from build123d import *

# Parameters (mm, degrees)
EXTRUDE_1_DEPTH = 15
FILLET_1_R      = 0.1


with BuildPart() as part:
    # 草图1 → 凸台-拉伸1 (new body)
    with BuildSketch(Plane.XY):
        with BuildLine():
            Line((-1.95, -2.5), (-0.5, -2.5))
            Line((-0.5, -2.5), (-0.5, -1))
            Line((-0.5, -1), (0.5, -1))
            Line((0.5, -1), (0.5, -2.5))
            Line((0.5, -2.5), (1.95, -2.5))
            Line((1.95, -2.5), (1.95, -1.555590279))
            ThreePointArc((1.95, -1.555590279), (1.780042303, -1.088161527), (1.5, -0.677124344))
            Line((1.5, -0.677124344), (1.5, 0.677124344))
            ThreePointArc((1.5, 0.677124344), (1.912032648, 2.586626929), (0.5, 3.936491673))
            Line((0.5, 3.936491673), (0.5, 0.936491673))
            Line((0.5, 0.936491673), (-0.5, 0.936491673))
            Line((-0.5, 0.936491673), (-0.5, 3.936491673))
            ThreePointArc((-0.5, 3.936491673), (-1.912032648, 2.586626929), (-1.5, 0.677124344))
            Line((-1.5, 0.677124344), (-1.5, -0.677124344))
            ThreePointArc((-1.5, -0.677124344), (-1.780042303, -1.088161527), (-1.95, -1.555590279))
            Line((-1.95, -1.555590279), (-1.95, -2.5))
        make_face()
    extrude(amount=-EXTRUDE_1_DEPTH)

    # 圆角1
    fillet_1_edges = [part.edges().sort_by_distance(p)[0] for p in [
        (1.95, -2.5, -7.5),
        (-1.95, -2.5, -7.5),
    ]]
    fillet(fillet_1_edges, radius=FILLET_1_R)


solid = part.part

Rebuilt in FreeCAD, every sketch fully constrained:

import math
import FreeCAD as App
import Part
import Sketcher

V = App.Vector


def edges_at(feature, points):
    """Names of the edges that pass closest to the given points."""
    edges = feature.Shape.Edges
    near = lambda p: min(range(len(edges)), key=lambda i: edges[i].distToShape(Part.Vertex(*p))[0])
    return sorted({f"Edge{near(p) + 1}" for p in points})

doc = App.newDocument("Part")
body = doc.addObject("PartDesign::Body", "Body")

# Sketch on XY plane
sketch1 = doc.addObject("Sketcher::SketchObject", "Sketch")
body.addObject(sketch1)
sketch1.AttachmentSupport = (doc.XY_Plane, [""])
sketch1.MapMode = "FlatFace"
sketch1.addGeometry(Part.LineSegment(V(-1.9, -2.5, 0), V(-0.5, -2.5, 0)), False)
sketch1.addGeometry(Part.LineSegment(V(-0.5, -2.5, 0), V(-0.5, -1, 0)), False)
sketch1.addGeometry(Part.LineSegment(V(-0.5, -1, 0), V(0.5, -1, 0)), False)
sketch1.addGeometry(Part.LineSegment(V(0.5, -1, 0), V(0.5, -2.5, 0)), False)
sketch1.addGeometry(Part.LineSegment(V(0.5, -2.5, 0), V(1.9, -2.5, 0)), False)
sketch1.addGeometry(Part.LineSegment(V(1.9, -2.5, 0), V(1.9, -1.6, 0)), False)
sketch1.addGeometry(Part.ArcOfCircle(Part.Circle(V(0, -2, 0), V(0, 0, 1), 2), math.radians(13), math.radians(41)), False)
sketch1.addGeometry(Part.LineSegment(V(1.5, -0.7, 0), V(1.5, 0.7, 0)), False)
sketch1.addGeometry(Part.ArcOfCircle(Part.Circle(V(0, 2, 0), V(0, 0, 1), 2), math.radians(-41), math.radians(76)), False)
sketch1.addGeometry(Part.LineSegment(V(0.5, 3.9, 0), V(0.5, 0.9, 0)), False)
sketch1.addGeometry(Part.LineSegment(V(0.5, 0.9, 0), V(-0.5, 0.9, 0)), False)
sketch1.addGeometry(Part.LineSegment(V(-0.5, 0.9, 0), V(-0.5, 3.9, 0)), False)
sketch1.addGeometry(Part.ArcOfCircle(Part.Circle(V(0, 2, 0), V(0, 0, 1), 2), math.radians(104), math.radians(221)), False)
sketch1.addGeometry(Part.LineSegment(V(-1.5, 0.7, 0), V(-1.5, -0.7, 0)), False)
sketch1.addGeometry(Part.ArcOfCircle(Part.Circle(V(0, -2, 0), V(0, 0, 1), 2), math.radians(139), math.radians(167)), False)
sketch1.addGeometry(Part.LineSegment(V(-1.9, -1.6, 0), V(-1.9, -2.5, 0)), False)
sketch1.addConstraint(Sketcher.Constraint("Coincident", 0, 2, 1, 1))
sketch1.addConstraint(Sketcher.Constraint("Coincident", 1, 2, 2, 1))
sketch1.addConstraint(Sketcher.Constraint("Coincident", 2, 2, 3, 1))
sketch1.addConstraint(Sketcher.Constraint("Coincident", 3, 2, 4, 1))
sketch1.addConstraint(Sketcher.Constraint("Coincident", 4, 2, 5, 1))
sketch1.addConstraint(Sketcher.Constraint("Coincident", 5, 2, 6, 1))
sketch1.addConstraint(Sketcher.Constraint("Coincident", 6, 2, 7, 1))
sketch1.addConstraint(Sketcher.Constraint("Coincident", 7, 2, 8, 1))
sketch1.addConstraint(Sketcher.Constraint("Coincident", 8, 2, 9, 1))
sketch1.addConstraint(Sketcher.Constraint("Coincident", 9, 2, 10, 1))
sketch1.addConstraint(Sketcher.Constraint("Coincident", 10, 2, 11, 1))
sketch1.addConstraint(Sketcher.Constraint("Coincident", 11, 2, 12, 1))
sketch1.addConstraint(Sketcher.Constraint("Coincident", 12, 2, 13, 1))
sketch1.addConstraint(Sketcher.Constraint("Coincident", 13, 2, 14, 1))
sketch1.addConstraint(Sketcher.Constraint("Coincident", 14, 2, 15, 1))
sketch1.addConstraint(Sketcher.Constraint("Coincident", 15, 2, 0, 1))
sketch1.addConstraint(Sketcher.Constraint("Horizontal", 0))
sketch1.addConstraint(Sketcher.Constraint("Vertical", 1))
sketch1.addConstraint(Sketcher.Constraint("Horizontal", 2))
sketch1.addConstraint(Sketcher.Constraint("Vertical", 3))
sketch1.addConstraint(Sketcher.Constraint("Horizontal", 4))
sketch1.addConstraint(Sketcher.Constraint("Vertical", 5))
sketch1.addConstraint(Sketcher.Constraint("Vertical", 7))
sketch1.addConstraint(Sketcher.Constraint("Vertical", 9))
sketch1.addConstraint(Sketcher.Constraint("Horizontal", 10))
sketch1.addConstraint(Sketcher.Constraint("Vertical", 11))
sketch1.addConstraint(Sketcher.Constraint("Vertical", 13))
sketch1.addConstraint(Sketcher.Constraint("Vertical", 15))
sketch1.addConstraint(Sketcher.Constraint("Coincident", 12, 3, 8, 3))
sketch1.addConstraint(Sketcher.Constraint("Coincident", 14, 3, 6, 3))
sketch1.addConstraint(Sketcher.Constraint("Equal", 6, 8))
sketch1.addConstraint(Sketcher.Constraint("Equal", 8, 12))
sketch1.addConstraint(Sketcher.Constraint("Equal", 12, 14))
sketch1.addConstraint(Sketcher.Constraint("Symmetric", 6, 3, 8, 3, -1, 1))
sketch1.addConstraint(Sketcher.Constraint("Symmetric", 0, 2, 3, 2, -2))
sketch1.addConstraint(Sketcher.Constraint("Symmetric", 8, 2, 11, 2, -2))
sketch1.addConstraint(Sketcher.Constraint("Horizontal", 7, 2, 12, 2))
sketch1.addConstraint(Sketcher.Constraint("Horizontal", 5, 2, 14, 2))
sketch1.addConstraint(Sketcher.Constraint("Vertical", 3, 2, 8, 2))
sketch1.addConstraint(Sketcher.Constraint("Radius", 6, 2.0))
sketch1.addConstraint(Sketcher.Constraint("DistanceX", 2, 1, 2, 2, 1.0))
sketch1.addConstraint(Sketcher.Constraint("DistanceY", 9, 2, 9, 1, 3.0))
sketch1.addConstraint(Sketcher.Constraint("DistanceY", 1, 1, 1, 2, 1.5))
sketch1.addConstraint(Sketcher.Constraint("DistanceY", 6, 3, -1, 1, 2.0))
sketch1.addConstraint(Sketcher.Constraint("DistanceY", 1, 2, -1, 1, 1.0))
sketch1.addConstraint(Sketcher.Constraint("DistanceX", 2, 2, 6, 2, 1.0))
sketch1.addConstraint(Sketcher.Constraint("DistanceX", 0, 1, 0, 2, 1.45))
pad1 = doc.addObject("PartDesign::Pad", "Pad")
body.addObject(pad1)
pad1.Profile = sketch1
pad1.Length = 15
pad1.Reversed = True
doc.recompute()

fillet = doc.addObject("PartDesign::Fillet", "Fillet")
body.addObject(fillet)
fillet.Base = (pad1, edges_at(pad1, [(1.95, -2.5, -7.5), (-1.95, -2.5, -7.5)]))
fillet.Radius = 0.1

doc.recompute()
